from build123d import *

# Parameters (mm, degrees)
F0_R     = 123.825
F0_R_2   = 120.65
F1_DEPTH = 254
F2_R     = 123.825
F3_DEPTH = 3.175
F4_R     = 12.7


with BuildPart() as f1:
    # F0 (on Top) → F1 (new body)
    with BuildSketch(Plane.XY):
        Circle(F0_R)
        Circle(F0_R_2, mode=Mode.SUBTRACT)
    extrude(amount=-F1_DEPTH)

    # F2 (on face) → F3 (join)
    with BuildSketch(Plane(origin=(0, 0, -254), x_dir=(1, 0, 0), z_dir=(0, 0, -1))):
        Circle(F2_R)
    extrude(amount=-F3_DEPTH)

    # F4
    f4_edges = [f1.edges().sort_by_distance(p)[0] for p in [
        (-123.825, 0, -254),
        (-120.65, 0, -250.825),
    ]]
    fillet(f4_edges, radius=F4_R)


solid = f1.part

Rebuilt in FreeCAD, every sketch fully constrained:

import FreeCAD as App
import Part
import Sketcher

V = App.Vector
Q = App.Units.Quantity


def edges_at(feature, points):
    """Names of the edges that pass closest to the given points."""
    edges = feature.Shape.Edges
    near = lambda p: min(range(len(edges)), key=lambda i: edges[i].distToShape(Part.Vertex(*p))[0])
    return sorted({f"Edge{near(p) + 1}" for p in points})

doc = App.newDocument("Part")
params = doc.addObject("Spreadsheet::Sheet", "Params")
for row, (alias, value) in enumerate([
    ("sketch1_diameter", "9.5 in"),
    ("sketch1_diameter2", "9.75 in"),
    ("pad1_length", "10 in"),
    ("sketch2_diameter", "9.75 in"),
    ("pad2_length", "0.125 in"),
    ("fillet_radius", "0.5 in"),
], start=1):
    params.set(f"A{row}", alias)
    params.set(f"B{row}", "=" + value)
    params.setAlias(f"B{row}", alias)

body = doc.addObject("PartDesign::Body", "Body")

# Sketch on XY plane
sketch1 = doc.addObject("Sketcher::SketchObject", "Sketch")
body.addObject(sketch1)
sketch1.AttachmentSupport = (doc.XY_Plane, [""])
sketch1.MapMode = "FlatFace"
sketch1.addGeometry(Part.Circle(V(0, 0, 0), V(0, 0, 1), 124), False)
sketch1.addGeometry(Part.Circle(V(0, 0, 0), V(0, 0, 1), 121), False)
sketch1.addConstraint(Sketcher.Constraint("Coincident", 0, 3, -1, 1))
sketch1.addConstraint(Sketcher.Constraint("Coincident", 1, 3, -1, 1))
sketch1.addConstraint(Sketcher.Constraint("Diameter", 1, Q("9.5 in")))
sketch1.addConstraint(Sketcher.Constraint("Diameter", 0, Q("9.75 in")))
sketch1.setExpression("Constraints[2]", "Params.sketch1_diameter")
sketch1.setExpression("Constraints[3]", "Params.sketch1_diameter2")
pad1 = doc.addObject("PartDesign::Pad", "Pad")
body.addObject(pad1)
pad1.Profile = sketch1
pad1.setExpression("Length", "Params.pad1_length")
pad1.Reversed = True

# Sketch on XY plane
sketch2 = doc.addObject("Sketcher::SketchObject", "Sketch001")
body.addObject(sketch2)
sketch2.AttachmentSupport = (doc.XY_Plane, [""])
sketch2.MapMode = "FlatFace"
sketch2.AttachmentOffset = App.Placement(V(0, 0, -10 * 25.4), App.Rotation())
sketch2.addGeometry(Part.Circle(V(0, 0, 0), V(0, 0, 1), 124), False)
sketch2.addConstraint(Sketcher.Constraint("Coincident", 0, 3, -1, 1))
sketch2.addConstraint(Sketcher.Constraint("Diameter", 0, Q("9.75 in")))
sketch2.setExpression("Constraints[1]", "Params.sketch2_diameter")
pad2 = doc.addObject("PartDesign::Pad", "Pad001")
body.addObject(pad2)
pad2.Profile = sketch2
pad2.setExpression("Length", "Params.pad2_length")
doc.recompute()

fillet = doc.addObject("PartDesign::Fillet", "Fillet")
body.addObject(fillet)
fillet.Base = (pad2, edges_at(pad2, [(-123.825, 0, -254), (-120.65, 0, -250.825)]))
fillet.setExpression("Radius", "Params.fillet_radius")

doc.recompute()
